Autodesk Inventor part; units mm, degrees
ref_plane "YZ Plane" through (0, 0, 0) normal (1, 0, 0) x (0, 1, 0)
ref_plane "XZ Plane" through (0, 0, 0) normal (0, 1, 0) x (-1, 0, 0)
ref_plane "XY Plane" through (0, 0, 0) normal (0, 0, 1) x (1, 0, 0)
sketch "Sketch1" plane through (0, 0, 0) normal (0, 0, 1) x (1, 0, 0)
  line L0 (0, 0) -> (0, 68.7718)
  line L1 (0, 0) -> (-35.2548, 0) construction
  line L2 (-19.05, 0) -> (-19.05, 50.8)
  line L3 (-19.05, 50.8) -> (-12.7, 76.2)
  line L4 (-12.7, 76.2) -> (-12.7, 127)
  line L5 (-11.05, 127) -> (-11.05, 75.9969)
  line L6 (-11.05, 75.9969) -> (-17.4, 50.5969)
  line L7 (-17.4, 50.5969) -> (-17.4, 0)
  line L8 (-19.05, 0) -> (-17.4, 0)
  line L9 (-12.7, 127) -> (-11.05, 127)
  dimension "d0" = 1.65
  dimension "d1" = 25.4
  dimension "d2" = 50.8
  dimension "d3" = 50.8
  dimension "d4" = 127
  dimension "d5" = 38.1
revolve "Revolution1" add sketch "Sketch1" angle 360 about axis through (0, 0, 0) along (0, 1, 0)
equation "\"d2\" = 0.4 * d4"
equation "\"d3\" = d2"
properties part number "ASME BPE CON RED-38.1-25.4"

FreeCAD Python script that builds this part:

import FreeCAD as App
import Part
import Sketcher
Q = App.Units.Quantity

doc = App.newDocument("Part")
body = doc.addObject("PartDesign::Body", "Body")

sketch1 = body.newObject("Sketcher::SketchObject", "Sketch")
sketch1.AttachmentSupport = (doc.getObject("XY_Plane"), [""])
sketch1.MapMode = "FlatFace"
sketch1.addGeometry([
    Part.LineSegment(App.Vector(-19.1, 50.8, 0), App.Vector(-19.1, 0, 0)),
    Part.LineSegment(App.Vector(-19.1, 0, 0), App.Vector(-17.4, 0, 0)),
    Part.LineSegment(App.Vector(-17.4, 0, 0), App.Vector(-17.4, 50.6, 0)),
    Part.LineSegment(App.Vector(-17.4, 50.6, 0), App.Vector(-11.1, 76, 0)),
    Part.LineSegment(App.Vector(-11.1, 76, 0), App.Vector(-11.1, 127, 0)),
    Part.LineSegment(App.Vector(-11.1, 127, 0), App.Vector(-12.7, 127, 0)),
    Part.LineSegment(App.Vector(-12.7, 127, 0), App.Vector(-12.7, 76.2, 0)),
    Part.LineSegment(App.Vector(-12.7, 76.2, 0), App.Vector(-19.1, 50.8, 0)),
], False)
sketch1.addConstraint([
    Sketcher.Constraint("Coincident", 0, 2, 1, 1),
    Sketcher.Constraint("Coincident", 1, 2, 2, 1),
    Sketcher.Constraint("Coincident", 2, 2, 3, 1),
    Sketcher.Constraint("Coincident", 3, 2, 4, 1),
    Sketcher.Constraint("Coincident", 4, 2, 5, 1),
    Sketcher.Constraint("Coincident", 5, 2, 6, 1),
    Sketcher.Constraint("Coincident", 6, 2, 7, 1),
    Sketcher.Constraint("Coincident", 7, 2, 0, 1),
    Sketcher.Constraint("Vertical", 0),
    Sketcher.Constraint("Horizontal", 1),
    Sketcher.Constraint("Vertical", 2),
    Sketcher.Constraint("Vertical", 4),
    Sketcher.Constraint("Horizontal", 5),
    Sketcher.Constraint("Vertical", 6),
    Sketcher.Constraint("PointOnObject", 0, 2, -1),
    Sketcher.Constraint("Parallel", 3, 7),
    Sketcher.Constraint("Equal", 1, 5),
    Sketcher.Constraint("Equal", 0, 6),
    Sketcher.Constraint("DistanceY", 0, 2, 0, 1, Q("2 in")),
    Sketcher.Constraint("DistanceY", -1, 1, 4, 2, Q("5 in")),
    Sketcher.Constraint("DistanceX", 1, 1, 1, 2, 1.65),
    Sketcher.Constraint("DistanceX", 5, 2, -1, 1, Q("0.5 in")),
    Sketcher.Constraint("DistanceY", 2, 1, 2, 2, Q("1.992 in")),
    Sketcher.Constraint("DistanceX", 0, 2, -1, 1, Q("0.75 in")),
])
revolution = body.newObject("PartDesign::Revolution", "Revolution")
revolution.Profile = sketch1
revolution.ReferenceAxis = (sketch1, ["V_Axis"])
revolution.Angle = 360

doc.recompute()
